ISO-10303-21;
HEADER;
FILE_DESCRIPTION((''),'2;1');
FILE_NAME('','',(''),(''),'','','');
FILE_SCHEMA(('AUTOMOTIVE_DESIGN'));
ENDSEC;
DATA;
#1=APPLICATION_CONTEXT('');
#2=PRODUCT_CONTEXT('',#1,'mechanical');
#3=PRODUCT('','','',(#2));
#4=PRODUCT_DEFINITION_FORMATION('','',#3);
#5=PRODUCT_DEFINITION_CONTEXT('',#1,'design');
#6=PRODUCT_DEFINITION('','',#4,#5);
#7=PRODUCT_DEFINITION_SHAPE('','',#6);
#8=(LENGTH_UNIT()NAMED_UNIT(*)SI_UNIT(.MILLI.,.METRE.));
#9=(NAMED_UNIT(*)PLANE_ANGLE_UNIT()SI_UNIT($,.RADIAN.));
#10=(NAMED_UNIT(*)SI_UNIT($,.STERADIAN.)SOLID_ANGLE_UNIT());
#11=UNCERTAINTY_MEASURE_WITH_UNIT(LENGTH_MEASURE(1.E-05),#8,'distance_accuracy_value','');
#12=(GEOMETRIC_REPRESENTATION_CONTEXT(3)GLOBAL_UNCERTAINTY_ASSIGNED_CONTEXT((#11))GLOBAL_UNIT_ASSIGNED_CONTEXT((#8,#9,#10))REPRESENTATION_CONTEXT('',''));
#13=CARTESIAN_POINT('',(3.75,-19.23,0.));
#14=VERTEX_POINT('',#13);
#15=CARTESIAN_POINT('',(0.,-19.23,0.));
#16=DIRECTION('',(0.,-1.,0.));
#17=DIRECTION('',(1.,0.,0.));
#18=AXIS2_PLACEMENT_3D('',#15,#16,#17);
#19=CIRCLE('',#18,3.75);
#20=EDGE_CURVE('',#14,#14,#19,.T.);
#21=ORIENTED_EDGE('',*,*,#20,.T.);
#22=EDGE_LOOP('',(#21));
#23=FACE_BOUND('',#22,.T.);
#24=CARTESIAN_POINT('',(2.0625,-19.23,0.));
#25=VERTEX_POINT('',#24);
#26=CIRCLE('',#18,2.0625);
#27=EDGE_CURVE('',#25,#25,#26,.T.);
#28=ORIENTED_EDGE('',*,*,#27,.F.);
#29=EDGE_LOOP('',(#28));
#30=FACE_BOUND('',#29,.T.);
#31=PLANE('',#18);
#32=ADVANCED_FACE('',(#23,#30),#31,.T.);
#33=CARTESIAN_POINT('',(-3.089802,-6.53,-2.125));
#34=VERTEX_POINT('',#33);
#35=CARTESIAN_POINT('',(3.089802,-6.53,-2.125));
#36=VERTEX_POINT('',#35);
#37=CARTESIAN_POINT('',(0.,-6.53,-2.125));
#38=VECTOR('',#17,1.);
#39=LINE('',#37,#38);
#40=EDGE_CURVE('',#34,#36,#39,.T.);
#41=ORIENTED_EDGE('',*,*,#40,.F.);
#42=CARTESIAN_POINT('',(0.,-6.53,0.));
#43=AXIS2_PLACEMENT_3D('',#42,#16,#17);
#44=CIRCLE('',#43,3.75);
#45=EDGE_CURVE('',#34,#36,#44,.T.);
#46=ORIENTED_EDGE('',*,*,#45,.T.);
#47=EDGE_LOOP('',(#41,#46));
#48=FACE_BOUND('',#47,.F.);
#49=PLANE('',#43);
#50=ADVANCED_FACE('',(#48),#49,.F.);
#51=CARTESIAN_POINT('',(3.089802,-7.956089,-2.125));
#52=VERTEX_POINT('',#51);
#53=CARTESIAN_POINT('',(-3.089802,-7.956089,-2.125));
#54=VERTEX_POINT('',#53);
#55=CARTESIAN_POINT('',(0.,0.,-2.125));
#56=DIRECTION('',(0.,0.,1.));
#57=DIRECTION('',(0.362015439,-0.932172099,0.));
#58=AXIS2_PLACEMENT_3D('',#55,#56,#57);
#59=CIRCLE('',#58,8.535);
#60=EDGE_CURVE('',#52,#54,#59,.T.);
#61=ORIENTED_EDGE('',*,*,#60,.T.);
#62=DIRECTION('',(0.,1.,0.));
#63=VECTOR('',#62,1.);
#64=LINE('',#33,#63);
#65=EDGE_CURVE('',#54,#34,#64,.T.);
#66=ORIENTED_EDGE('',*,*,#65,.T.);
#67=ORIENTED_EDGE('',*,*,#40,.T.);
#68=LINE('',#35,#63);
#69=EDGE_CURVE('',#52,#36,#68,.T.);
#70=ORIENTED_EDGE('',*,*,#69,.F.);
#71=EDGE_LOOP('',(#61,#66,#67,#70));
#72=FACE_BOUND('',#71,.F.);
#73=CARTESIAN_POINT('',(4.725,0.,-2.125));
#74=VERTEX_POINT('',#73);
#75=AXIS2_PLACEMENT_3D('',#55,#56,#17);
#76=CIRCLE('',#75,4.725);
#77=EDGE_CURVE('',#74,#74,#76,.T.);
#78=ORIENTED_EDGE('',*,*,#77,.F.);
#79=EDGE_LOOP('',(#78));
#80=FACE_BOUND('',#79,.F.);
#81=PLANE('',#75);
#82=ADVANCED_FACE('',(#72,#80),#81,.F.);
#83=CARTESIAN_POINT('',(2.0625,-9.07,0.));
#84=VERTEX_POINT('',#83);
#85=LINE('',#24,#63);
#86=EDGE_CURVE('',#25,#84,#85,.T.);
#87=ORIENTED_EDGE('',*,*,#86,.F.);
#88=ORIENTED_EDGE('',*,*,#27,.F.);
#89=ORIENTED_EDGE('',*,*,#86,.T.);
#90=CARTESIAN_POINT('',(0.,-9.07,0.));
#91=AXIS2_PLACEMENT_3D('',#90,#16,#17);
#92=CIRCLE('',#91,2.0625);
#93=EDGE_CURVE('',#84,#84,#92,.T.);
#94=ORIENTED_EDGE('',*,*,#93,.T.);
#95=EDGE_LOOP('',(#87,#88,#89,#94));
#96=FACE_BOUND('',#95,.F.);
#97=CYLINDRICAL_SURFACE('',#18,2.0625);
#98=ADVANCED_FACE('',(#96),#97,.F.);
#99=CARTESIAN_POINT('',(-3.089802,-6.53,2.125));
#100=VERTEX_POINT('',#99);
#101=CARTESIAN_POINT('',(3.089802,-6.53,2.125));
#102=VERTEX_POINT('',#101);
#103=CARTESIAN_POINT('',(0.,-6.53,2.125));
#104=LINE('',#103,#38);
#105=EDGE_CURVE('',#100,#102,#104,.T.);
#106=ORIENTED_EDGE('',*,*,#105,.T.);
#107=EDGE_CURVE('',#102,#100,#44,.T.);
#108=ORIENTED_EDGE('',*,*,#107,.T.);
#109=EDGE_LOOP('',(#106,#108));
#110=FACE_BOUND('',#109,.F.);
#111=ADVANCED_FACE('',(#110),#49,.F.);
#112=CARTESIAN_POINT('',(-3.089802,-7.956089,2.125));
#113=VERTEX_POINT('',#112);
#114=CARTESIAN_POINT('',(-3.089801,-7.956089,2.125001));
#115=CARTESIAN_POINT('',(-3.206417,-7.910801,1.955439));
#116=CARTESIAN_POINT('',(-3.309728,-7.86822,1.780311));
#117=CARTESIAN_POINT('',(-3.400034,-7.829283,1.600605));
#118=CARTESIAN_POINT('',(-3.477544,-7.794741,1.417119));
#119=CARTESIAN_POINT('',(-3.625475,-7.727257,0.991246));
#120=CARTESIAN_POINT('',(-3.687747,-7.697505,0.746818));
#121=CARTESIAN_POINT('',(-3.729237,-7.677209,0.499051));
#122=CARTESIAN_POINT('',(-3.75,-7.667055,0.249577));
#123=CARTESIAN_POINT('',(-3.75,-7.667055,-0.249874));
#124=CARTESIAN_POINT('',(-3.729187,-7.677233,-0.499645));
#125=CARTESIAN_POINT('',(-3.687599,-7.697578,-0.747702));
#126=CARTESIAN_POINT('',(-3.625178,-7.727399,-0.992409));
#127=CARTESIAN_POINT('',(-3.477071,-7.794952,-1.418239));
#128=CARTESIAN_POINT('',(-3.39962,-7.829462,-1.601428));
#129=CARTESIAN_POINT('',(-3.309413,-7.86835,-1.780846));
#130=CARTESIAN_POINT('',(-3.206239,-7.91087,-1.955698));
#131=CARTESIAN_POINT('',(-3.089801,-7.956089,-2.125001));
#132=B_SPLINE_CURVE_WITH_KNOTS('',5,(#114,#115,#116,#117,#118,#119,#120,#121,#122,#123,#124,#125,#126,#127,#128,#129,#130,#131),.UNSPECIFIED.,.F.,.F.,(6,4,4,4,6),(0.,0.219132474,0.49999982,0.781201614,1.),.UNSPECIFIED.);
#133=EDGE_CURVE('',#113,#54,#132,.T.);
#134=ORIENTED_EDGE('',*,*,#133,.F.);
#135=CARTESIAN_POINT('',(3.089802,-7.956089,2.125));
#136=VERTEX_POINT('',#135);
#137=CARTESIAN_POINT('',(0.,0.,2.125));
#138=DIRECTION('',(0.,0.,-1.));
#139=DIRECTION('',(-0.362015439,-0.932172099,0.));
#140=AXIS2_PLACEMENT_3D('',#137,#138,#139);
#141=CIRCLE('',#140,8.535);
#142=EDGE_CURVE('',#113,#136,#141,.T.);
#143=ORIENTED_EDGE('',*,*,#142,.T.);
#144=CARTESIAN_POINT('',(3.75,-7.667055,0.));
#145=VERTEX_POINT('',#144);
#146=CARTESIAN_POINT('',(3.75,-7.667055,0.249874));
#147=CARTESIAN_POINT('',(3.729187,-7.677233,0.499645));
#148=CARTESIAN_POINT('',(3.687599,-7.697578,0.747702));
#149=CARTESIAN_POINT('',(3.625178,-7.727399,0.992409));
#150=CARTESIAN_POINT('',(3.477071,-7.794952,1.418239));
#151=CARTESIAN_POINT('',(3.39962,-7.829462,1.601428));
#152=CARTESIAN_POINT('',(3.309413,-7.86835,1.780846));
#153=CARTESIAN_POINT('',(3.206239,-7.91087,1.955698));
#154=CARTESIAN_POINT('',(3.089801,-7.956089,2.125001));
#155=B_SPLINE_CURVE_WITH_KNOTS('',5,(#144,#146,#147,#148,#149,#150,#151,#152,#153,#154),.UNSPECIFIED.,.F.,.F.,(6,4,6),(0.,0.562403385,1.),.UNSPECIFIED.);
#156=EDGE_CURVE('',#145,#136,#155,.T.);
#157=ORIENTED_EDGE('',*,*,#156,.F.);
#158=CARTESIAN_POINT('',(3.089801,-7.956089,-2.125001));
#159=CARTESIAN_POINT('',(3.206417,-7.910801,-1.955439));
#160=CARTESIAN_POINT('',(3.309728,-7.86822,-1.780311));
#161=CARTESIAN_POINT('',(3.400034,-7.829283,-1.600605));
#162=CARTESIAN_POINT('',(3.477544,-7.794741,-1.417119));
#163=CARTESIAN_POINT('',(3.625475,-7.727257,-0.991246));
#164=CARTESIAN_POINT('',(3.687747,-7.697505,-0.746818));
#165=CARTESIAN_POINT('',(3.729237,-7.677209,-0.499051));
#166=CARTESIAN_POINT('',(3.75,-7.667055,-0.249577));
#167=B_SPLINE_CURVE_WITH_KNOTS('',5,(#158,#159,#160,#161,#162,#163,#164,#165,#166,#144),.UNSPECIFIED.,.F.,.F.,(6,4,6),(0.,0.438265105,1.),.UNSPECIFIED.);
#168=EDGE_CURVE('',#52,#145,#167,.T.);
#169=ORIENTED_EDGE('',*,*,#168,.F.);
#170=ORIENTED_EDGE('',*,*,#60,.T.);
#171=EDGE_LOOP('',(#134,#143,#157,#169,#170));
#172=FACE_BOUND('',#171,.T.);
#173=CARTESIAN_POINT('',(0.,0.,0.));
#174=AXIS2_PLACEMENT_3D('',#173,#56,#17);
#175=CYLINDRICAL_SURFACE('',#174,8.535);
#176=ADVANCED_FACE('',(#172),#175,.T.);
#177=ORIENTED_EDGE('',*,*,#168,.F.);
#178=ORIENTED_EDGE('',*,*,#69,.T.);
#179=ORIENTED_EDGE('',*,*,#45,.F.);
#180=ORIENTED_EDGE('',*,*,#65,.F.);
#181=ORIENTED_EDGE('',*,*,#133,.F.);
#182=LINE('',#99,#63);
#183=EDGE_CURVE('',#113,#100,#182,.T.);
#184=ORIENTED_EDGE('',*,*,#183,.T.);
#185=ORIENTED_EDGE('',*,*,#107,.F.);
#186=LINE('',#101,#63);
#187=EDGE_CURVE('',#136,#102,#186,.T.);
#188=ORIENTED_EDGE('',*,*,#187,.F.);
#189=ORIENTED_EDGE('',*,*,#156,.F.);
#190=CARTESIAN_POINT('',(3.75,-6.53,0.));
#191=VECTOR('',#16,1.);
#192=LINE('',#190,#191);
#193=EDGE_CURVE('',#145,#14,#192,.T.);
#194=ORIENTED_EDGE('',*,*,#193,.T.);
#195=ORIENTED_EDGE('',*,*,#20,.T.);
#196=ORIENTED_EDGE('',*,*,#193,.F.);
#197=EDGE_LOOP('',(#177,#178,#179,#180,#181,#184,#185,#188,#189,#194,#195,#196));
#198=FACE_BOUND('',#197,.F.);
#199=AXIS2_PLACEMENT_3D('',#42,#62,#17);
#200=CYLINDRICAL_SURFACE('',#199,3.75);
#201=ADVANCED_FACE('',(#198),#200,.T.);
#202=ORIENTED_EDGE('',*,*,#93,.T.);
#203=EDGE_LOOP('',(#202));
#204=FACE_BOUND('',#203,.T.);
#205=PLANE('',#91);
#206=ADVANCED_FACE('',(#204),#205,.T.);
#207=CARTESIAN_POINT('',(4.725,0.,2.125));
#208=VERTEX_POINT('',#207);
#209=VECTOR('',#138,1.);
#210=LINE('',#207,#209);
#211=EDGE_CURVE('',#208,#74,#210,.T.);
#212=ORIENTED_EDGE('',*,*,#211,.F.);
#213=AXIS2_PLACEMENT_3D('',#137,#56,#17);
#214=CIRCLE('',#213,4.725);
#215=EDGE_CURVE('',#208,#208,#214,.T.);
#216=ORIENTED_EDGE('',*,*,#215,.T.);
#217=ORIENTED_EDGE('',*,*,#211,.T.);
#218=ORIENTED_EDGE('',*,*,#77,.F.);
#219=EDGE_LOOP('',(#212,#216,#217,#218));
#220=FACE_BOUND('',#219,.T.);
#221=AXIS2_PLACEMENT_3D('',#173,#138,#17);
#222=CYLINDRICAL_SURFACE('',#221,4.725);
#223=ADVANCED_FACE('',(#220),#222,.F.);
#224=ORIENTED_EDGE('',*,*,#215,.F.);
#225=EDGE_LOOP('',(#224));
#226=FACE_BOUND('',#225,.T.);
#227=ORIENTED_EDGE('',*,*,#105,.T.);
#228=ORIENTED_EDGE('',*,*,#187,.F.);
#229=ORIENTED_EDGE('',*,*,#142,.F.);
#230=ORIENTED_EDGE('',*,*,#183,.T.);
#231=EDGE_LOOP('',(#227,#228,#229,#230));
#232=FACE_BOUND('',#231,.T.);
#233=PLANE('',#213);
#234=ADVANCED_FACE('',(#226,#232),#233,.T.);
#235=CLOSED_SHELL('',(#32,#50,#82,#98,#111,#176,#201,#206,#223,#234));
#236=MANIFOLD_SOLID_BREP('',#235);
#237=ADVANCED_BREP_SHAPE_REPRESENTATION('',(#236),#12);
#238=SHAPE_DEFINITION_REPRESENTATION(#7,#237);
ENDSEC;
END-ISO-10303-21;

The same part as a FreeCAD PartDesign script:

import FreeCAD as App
import Part
import Sketcher

V = App.Vector
Q = App.Units.Quantity

doc = App.newDocument("Part")
body = doc.addObject("PartDesign::Body", "Body")

# Sketch on XY plane
sketch1 = body.newObject("Sketcher::SketchObject", "Sketch")
sketch1.AttachmentSupport = (doc.getObject("XY_Plane"), [""])
sketch1.MapMode = "FlatFace"
sketch1.addGeometry(Part.Circle(V(0, 0, 0), V(0, 0, 1), 8.535), False)
sketch1.addGeometry(Part.Circle(V(0, 0, 0), V(0, 0, 1), 4.725), False)
sketch1.addConstraint(Sketcher.Constraint("Coincident", 0, 3, -1, 1))
sketch1.addConstraint(Sketcher.Constraint("Coincident", 1, 3, -1, 1))
sketch1.addConstraint(Sketcher.Constraint("Diameter", 0, Q("17.07 mm")))
sketch1.addConstraint(Sketcher.Constraint("Diameter", 1, Q("9.45 mm")))
pad1 = body.newObject("PartDesign::Pad", "Pad")
pad1.Profile = sketch1
pad1.Length = 4.25
pad1.Midplane = True

# Sketch on XZ plane
sketch2 = body.newObject("Sketcher::SketchObject", "Sketch001")
sketch2.AttachmentSupport = (doc.getObject("XZ_Plane"), [""])
sketch2.MapMode = "FlatFace"
sketch2.AttachmentOffset = App.Placement(V(0, 0, 6.53), App.Rotation())
sketch2.addGeometry(Part.Circle(V(0, 0, 0), V(0, 0, 1), 3.75), False)
sketch2.addConstraint(Sketcher.Constraint("Coincident", 0, 3, -1, 1))
sketch2.addConstraint(Sketcher.Constraint("Diameter", 0, Q("7.5 mm")))
pad2 = body.newObject("PartDesign::Pad", "Pad001")
pad2.Profile = sketch2
pad2.Length = Q("0.5 in")

# Sketch on XZ plane
sketch3 = body.newObject("Sketcher::SketchObject", "Sketch002")
sketch3.AttachmentSupport = (doc.getObject("XZ_Plane"), [""])
sketch3.MapMode = "FlatFace"
sketch3.AttachmentOffset = App.Placement(V(0, 0, 19.23), App.Rotation())
sketch3.addGeometry(Part.Circle(V(0, 0, 0), V(0, 0, 1), 2.0625), False)
sketch3.addConstraint(Sketcher.Constraint("Coincident", 0, 3, -1, 1))
sketch3.addConstraint(Sketcher.Constraint("Diameter", 0, Q("4.125 mm")))
pocket1 = body.newObject("PartDesign::Pocket", "Pocket")
pocket1.Profile = sketch3
pocket1.Length = Q("0.4 in")

doc.recompute()
